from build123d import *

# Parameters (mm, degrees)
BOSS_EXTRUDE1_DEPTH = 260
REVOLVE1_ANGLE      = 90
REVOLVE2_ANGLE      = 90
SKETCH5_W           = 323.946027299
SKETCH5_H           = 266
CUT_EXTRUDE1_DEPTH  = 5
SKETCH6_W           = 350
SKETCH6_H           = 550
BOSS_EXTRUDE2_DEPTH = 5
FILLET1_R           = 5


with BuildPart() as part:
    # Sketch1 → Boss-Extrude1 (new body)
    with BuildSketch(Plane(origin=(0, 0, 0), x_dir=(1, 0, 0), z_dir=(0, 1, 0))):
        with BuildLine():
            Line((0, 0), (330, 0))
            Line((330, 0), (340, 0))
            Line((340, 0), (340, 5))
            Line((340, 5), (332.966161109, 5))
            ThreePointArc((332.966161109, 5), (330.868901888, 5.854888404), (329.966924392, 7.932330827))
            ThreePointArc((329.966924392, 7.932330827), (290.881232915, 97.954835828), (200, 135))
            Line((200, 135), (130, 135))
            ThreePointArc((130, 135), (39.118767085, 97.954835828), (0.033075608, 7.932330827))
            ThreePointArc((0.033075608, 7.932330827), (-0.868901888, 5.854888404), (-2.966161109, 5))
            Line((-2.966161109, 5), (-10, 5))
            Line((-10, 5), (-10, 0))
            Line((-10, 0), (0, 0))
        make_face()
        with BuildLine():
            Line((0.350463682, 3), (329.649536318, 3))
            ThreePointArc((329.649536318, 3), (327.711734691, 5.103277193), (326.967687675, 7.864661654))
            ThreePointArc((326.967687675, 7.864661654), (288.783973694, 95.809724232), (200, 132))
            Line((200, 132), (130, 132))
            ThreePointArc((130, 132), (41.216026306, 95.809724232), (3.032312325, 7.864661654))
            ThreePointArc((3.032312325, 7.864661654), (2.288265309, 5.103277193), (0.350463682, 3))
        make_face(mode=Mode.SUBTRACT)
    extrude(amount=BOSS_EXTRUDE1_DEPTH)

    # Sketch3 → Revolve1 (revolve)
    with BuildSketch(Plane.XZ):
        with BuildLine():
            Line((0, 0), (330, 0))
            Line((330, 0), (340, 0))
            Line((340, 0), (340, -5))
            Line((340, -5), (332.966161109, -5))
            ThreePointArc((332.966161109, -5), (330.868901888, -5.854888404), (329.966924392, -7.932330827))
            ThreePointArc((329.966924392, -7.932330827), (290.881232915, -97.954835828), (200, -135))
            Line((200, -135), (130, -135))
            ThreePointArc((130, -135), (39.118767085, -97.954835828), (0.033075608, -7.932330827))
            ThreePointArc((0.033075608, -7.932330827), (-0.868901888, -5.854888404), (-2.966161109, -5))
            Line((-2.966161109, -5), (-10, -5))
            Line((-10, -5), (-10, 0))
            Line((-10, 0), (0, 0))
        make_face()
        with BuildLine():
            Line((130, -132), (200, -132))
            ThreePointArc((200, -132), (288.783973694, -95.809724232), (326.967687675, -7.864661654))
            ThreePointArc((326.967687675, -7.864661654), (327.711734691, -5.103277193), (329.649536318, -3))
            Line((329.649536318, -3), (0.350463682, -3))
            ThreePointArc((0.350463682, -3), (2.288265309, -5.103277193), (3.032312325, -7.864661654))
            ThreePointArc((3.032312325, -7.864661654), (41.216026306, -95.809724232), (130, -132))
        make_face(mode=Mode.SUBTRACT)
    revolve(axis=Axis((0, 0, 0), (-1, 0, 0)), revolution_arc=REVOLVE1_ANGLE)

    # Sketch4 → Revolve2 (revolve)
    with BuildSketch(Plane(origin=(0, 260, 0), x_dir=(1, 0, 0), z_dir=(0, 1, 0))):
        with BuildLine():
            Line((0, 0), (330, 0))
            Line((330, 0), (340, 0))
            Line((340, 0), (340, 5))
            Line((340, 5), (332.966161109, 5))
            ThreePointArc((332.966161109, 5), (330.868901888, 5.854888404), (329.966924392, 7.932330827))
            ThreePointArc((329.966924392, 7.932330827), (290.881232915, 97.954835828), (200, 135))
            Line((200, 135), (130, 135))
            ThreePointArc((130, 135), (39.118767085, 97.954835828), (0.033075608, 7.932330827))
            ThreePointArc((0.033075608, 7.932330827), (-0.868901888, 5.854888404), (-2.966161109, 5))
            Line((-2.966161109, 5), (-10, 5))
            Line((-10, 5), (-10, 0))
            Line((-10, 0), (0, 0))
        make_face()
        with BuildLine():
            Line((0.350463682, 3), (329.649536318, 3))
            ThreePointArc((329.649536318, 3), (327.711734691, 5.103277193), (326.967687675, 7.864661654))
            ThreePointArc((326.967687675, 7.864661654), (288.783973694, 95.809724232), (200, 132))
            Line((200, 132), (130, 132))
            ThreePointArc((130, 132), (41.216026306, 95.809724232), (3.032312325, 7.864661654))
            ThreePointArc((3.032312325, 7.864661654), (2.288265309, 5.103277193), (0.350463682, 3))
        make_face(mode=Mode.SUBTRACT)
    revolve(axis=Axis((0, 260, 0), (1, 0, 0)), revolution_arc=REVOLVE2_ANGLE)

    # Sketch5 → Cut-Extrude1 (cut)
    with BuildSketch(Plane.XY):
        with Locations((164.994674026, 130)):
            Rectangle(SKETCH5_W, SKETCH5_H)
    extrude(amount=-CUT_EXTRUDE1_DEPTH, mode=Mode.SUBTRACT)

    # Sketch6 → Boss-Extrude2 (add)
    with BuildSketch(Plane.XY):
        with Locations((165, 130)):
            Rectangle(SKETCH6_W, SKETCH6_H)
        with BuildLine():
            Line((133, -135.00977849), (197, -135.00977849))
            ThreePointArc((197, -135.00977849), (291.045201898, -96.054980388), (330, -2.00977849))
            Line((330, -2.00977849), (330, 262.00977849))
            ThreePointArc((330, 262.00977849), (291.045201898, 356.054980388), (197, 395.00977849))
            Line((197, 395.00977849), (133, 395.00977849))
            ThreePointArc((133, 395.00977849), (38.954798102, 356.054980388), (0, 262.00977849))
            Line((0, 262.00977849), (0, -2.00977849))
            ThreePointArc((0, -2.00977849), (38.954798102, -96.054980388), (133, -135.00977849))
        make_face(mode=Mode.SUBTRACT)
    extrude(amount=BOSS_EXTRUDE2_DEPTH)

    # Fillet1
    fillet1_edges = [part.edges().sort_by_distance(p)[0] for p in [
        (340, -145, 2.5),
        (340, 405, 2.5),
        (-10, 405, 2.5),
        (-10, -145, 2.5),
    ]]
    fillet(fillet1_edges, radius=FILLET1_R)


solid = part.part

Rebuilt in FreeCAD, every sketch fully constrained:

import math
import FreeCAD as App
import Part
import Sketcher

V = App.Vector
Q = App.Units.Quantity


def edges_at(feature, points):
    """Names of the edges that pass closest to the given points."""
    edges = feature.Shape.Edges
    near = lambda p: min(range(len(edges)), key=lambda i: edges[i].distToShape(Part.Vertex(*p))[0])
    return sorted({f"Edge{near(p) + 1}" for p in points})

doc = App.newDocument("Part")
body = doc.addObject("PartDesign::Body", "Body")

# Sketch on XZ plane
sketch1 = doc.addObject("Sketcher::SketchObject", "Sketch")
body.addObject(sketch1)
sketch1.AttachmentSupport = (doc.XZ_Plane, [""])
sketch1.MapMode = "FlatFace"
sketch1.addGeometry([
    Part.LineSegment(V(340, 0, 0), V(340, -5, 0)),  # 0
    Part.LineSegment(V(340, -5, 0), V(333, -5, 0)),  # 1
    Part.ArcOfCircle(Part.Circle(V(333, -8, 0), V(0, 0, 1), 3), math.radians(90), math.radians(179)),  # 2
    Part.ArcOfCircle(Part.Circle(V(200, -5, 0), V(0, 0, 1), 130), math.radians(-90), math.radians(-1)),  # 3
    Part.LineSegment(V(200, -135, 0), V(130, -135, 0)),  # 4
    Part.ArcOfCircle(Part.Circle(V(130, -5, 0), V(0, 0, 1), 130), math.radians(-179), math.radians(-90)),  # 5
    Part.ArcOfCircle(Part.Circle(V(-3, -8, 0), V(0, 0, 1), 3), math.radians(1), math.radians(90)),  # 6
    Part.LineSegment(V(-3, -5, 0), V(-10, -5, 0)),  # 7
    Part.LineSegment(V(-10, -5, 0), V(-10, 0, 0)),  # 8
    Part.LineSegment(V(-10, 0, 0), V(340, 0, 0)),  # 9
    Part.LineSegment(V(329.6, -3, 0), V(0.4, -3, 0)),  # 10
    Part.ArcOfCircle(Part.Circle(V(-3, -8, 0), V(0, 0, 1), 6), math.radians(1), math.radians(56)),  # 11
    Part.ArcOfCircle(Part.Circle(V(130, -5, 0), V(0, 0, 1), 127), math.radians(-179), math.radians(-90)),  # 12
    Part.LineSegment(V(130, -132, 0), V(200, -132, 0)),  # 13
    Part.ArcOfCircle(Part.Circle(V(200, -5, 0), V(0, 0, 1), 127), math.radians(-90), math.radians(-1)),  # 14
    Part.ArcOfCircle(Part.Circle(V(333, -8, 0), V(0, 0, 1), 6), math.radians(124), math.radians(179)),  # 15
], False)
sketch1.addConstraint([
    Sketcher.Constraint("Coincident", 0, 2, 1, 1),
    Sketcher.Constraint("Tangent", 1, 2, 2, 1),
    Sketcher.Constraint("Tangent", 2, 2, 3, 2),
    Sketcher.Constraint("Tangent", 3, 1, 4, 1),
    Sketcher.Constraint("Tangent", 4, 2, 5, 2),
    Sketcher.Constraint("Tangent", 5, 1, 6, 1),
    Sketcher.Constraint("Tangent", 6, 2, 7, 1),
    Sketcher.Constraint("Coincident", 7, 2, 8, 1),
    Sketcher.Constraint("Coincident", 8, 2, 9, 1),
    Sketcher.Constraint("Coincident", 9, 2, 0, 1),
    Sketcher.Constraint("Coincident", 10, 2, 11, 2),
    Sketcher.Constraint("Tangent", 11, 1, 12, 1),
    Sketcher.Constraint("Tangent", 12, 2, 13, 1),
    Sketcher.Constraint("Tangent", 13, 2, 14, 1),
    Sketcher.Constraint("Tangent", 14, 2, 15, 2),
    Sketcher.Constraint("Coincident", 15, 1, 10, 1),
    Sketcher.Constraint("Vertical", 0),
    Sketcher.Constraint("Horizontal", 1),
    Sketcher.Constraint("Horizontal", 4),
    Sketcher.Constraint("Horizontal", 7),
    Sketcher.Constraint("Vertical", 8),
    Sketcher.Constraint("Horizontal", 9),
    Sketcher.Constraint("Horizontal", 10),
    Sketcher.Constraint("Horizontal", 13),
    Sketcher.Constraint("Coincident", 11, 3, 6, 3),
    Sketcher.Constraint("Coincident", 12, 3, 5, 3),
    Sketcher.Constraint("Coincident", 14, 3, 3, 3),
    Sketcher.Constraint("Coincident", 15, 3, 2, 3),
    Sketcher.Constraint("Equal", 3, 5),
    Sketcher.Constraint("Equal", 2, 6),
    Sketcher.Constraint("PointOnObject", 8, 2, -1),
    Sketcher.Constraint("Horizontal", 2, 3, 6, 3),
    Sketcher.Constraint("Horizontal", 14, 3, 0, 2),
    Sketcher.Constraint("Equal", 1, 7),
    Sketcher.Constraint("Radius", 2, Q("3 mm")),
    Sketcher.Constraint("Radius", 3, Q("130 mm")),
    Sketcher.Constraint("Radius", 11, Q("6 mm")),
    Sketcher.Constraint("DistanceX", 4, 2, 4, 1, Q("70 mm")),
    Sketcher.Constraint("DistanceX", 9, 1, 9, 2, Q("350 mm")),
    Sketcher.Constraint("DistanceY", 0, 2, 0, 1, Q("5 mm")),
    Sketcher.Constraint("DistanceX", -1, 1, 3, 3, Q("200 mm")),
    Sketcher.Constraint("DistanceY", 10, 2, -1, 1, Q("3 mm")),
])
pad1 = doc.addObject("PartDesign::Pad", "Pad")
body.addObject(pad1)
pad1.Profile = sketch1
pad1.Length = 260
pad1.Reversed = True

# Sketch on XZ plane
sketch2 = doc.addObject("Sketcher::SketchObject", "Sketch001")
body.addObject(sketch2)
sketch2.AttachmentSupport = (doc.XZ_Plane, [""])
sketch2.MapMode = "FlatFace"
sketch2.addGeometry([
    Part.LineSegment(V(340, -5, 0), V(340, 0, 0)),  # 0
    Part.LineSegment(V(340, 0, 0), V(-10, 0, 0)),  # 1
    Part.LineSegment(V(-10, 0, 0), V(-10, -5, 0)),  # 2
    Part.LineSegment(V(-10, -5, 0), V(-3, -5, 0)),  # 3
    Part.ArcOfCircle(Part.Circle(V(-3, -8, 0), V(0, 0, 1), 3), math.radians(1), math.radians(90)),  # 4
    Part.ArcOfCircle(Part.Circle(V(130, -5, 0), V(0, 0, 1), 130), math.radians(-179), math.radians(-90)),  # 5
    Part.LineSegment(V(130, -135, 0), V(200, -135, 0)),  # 6
    Part.ArcOfCircle(Part.Circle(V(200, -5, 0), V(0, 0, 1), 130), math.radians(-90), math.radians(-1)),  # 7
    Part.ArcOfCircle(Part.Circle(V(333, -8, 0), V(0, 0, 1), 3), math.radians(90), math.radians(179)),  # 8
    Part.LineSegment(V(333, -5, 0), V(340, -5, 0)),  # 9
    Part.ArcOfCircle(Part.Circle(V(130, -5, 0), V(0, 0, 1), 127), math.radians(-179), math.radians(-90)),  # 10
    Part.ArcOfCircle(Part.Circle(V(-3, -8, 0), V(0, 0, 1), 6), math.radians(1), math.radians(56)),  # 11
    Part.LineSegment(V(0.4, -3, 0), V(329.6, -3, 0)),  # 12
    Part.ArcOfCircle(Part.Circle(V(333, -8, 0), V(0, 0, 1), 6), math.radians(124), math.radians(179)),  # 13
    Part.ArcOfCircle(Part.Circle(V(200, -5, 0), V(0, 0, 1), 127), math.radians(-90), math.radians(-1)),  # 14
    Part.LineSegment(V(200, -132, 0), V(130, -132, 0)),  # 15
], False)
sketch2.addConstraint([
    Sketcher.Constraint("Coincident", 0, 2, 1, 1),
    Sketcher.Constraint("Coincident", 1, 2, 2, 1),
    Sketcher.Constraint("Coincident", 2, 2, 3, 1),
    Sketcher.Constraint("Tangent", 3, 2, 4, 2),
    Sketcher.Constraint("Tangent", 4, 1, 5, 1),
    Sketcher.Constraint("Tangent", 5, 2, 6, 1),
    Sketcher.Constraint("Tangent", 6, 2, 7, 1),
    Sketcher.Constraint("Tangent", 7, 2, 8, 2),
    Sketcher.Constraint("Tangent", 8, 1, 9, 1),
    Sketcher.Constraint("Coincident", 9, 2, 0, 1),
    Sketcher.Constraint("Tangent", 10, 1, 11, 1),
    Sketcher.Constraint("Coincident", 11, 2, 12, 1),
    Sketcher.Constraint("Coincident", 12, 2, 13, 1),
    Sketcher.Constraint("Tangent", 13, 2, 14, 2),
    Sketcher.Constraint("Tangent", 14, 1, 15, 1),
    Sketcher.Constraint("Tangent", 15, 2, 10, 2),
    Sketcher.Constraint("Vertical", 0),
    Sketcher.Constraint("Horizontal", 1),
    Sketcher.Constraint("Vertical", 2),
    Sketcher.Constraint("Horizontal", 3),
    Sketcher.Constraint("Horizontal", 6),
    Sketcher.Constraint("Horizontal", 9),
    Sketcher.Constraint("Horizontal", 12),
    Sketcher.Constraint("Horizontal", 15),
    Sketcher.Constraint("Coincident", 10, 3, 5, 3),
    Sketcher.Constraint("Coincident", 11, 3, 4, 3),
    Sketcher.Constraint("Coincident", 13, 3, 8, 3),
    Sketcher.Constraint("Coincident", 14, 3, 7, 3),
    Sketcher.Constraint("Equal", 5, 7),
    Sketcher.Constraint("Equal", 4, 8),
    Sketcher.Constraint("PointOnObject", 0, 2, -1),
    Sketcher.Constraint("Horizontal", 4, 3, 8, 3),
    Sketcher.Constraint("Horizontal", 14, 3, 2, 2),
    Sketcher.Constraint("Equal", 3, 9),
    Sketcher.Constraint("Radius", 4, Q("3 mm")),
    Sketcher.Constraint("Radius", 5, Q("130 mm")),
    Sketcher.Constraint("Radius", 10, Q("127 mm")),
    Sketcher.Constraint("DistanceX", 1, 2, 1, 1, Q("350 mm")),
    Sketcher.Constraint("DistanceX", 6, 1, 6, 2, Q("70 mm")),
    Sketcher.Constraint("DistanceY", 0, 1, 0, 2, Q("5 mm")),
    Sketcher.Constraint("DistanceX", -1, 1, 5, 3, Q("130 mm")),
    Sketcher.Constraint("DistanceY", 11, 2, -1, 1, Q("3 mm")),
])
revolution = doc.addObject("PartDesign::Revolution", "Revolution")
body.addObject(revolution)
revolution.Profile = sketch2
revolution.ReferenceAxis = (sketch2, ["H_Axis"])
revolution.Angle = 90
revolution.Reversed = True

# Sketch on XZ plane
sketch3 = doc.addObject("Sketcher::SketchObject", "Sketch002")
body.addObject(sketch3)
sketch3.AttachmentSupport = (doc.XZ_Plane, [""])
sketch3.MapMode = "FlatFace"
sketch3.AttachmentOffset = App.Placement(V(0, 0, -260), App.Rotation())
sketch3.addGeometry([
    Part.LineSegment(V(340, 0, 0), V(340, -5, 0)),  # 0
    Part.LineSegment(V(340, -5, 0), V(333, -5, 0)),  # 1
    Part.ArcOfCircle(Part.Circle(V(333, -8, 0), V(0, 0, 1), 3), math.radians(90), math.radians(179)),  # 2
    Part.ArcOfCircle(Part.Circle(V(200, -5, 0), V(0, 0, 1), 130), math.radians(-90), math.radians(-1)),  # 3
    Part.LineSegment(V(200, -135, 0), V(130, -135, 0)),  # 4
    Part.ArcOfCircle(Part.Circle(V(130, -5, 0), V(0, 0, 1), 130), math.radians(-179), math.radians(-90)),  # 5
    Part.ArcOfCircle(Part.Circle(V(-3, -8, 0), V(0, 0, 1), 3), math.radians(1), math.radians(90)),  # 6
    Part.LineSegment(V(-3, -5, 0), V(-10, -5, 0)),  # 7
    Part.LineSegment(V(-10, -5, 0), V(-10, 0, 0)),  # 8
    Part.LineSegment(V(-10, 0, 0), V(340, 0, 0)),  # 9
    Part.LineSegment(V(329.6, -3, 0), V(0.4, -3, 0)),  # 10
    Part.ArcOfCircle(Part.Circle(V(-3, -8, 0), V(0, 0, 1), 6), math.radians(1), math.radians(56)),  # 11
    Part.ArcOfCircle(Part.Circle(V(130, -5, 0), V(0, 0, 1), 127), math.radians(-179), math.radians(-90)),  # 12
    Part.LineSegment(V(130, -132, 0), V(200, -132, 0)),  # 13
    Part.ArcOfCircle(Part.Circle(V(200, -5, 0), V(0, 0, 1), 127), math.radians(-90), math.radians(-1)),  # 14
    Part.ArcOfCircle(Part.Circle(V(333, -8, 0), V(0, 0, 1), 6), math.radians(124), math.radians(179)),  # 15
], False)
sketch3.addConstraint([
    Sketcher.Constraint("Coincident", 0, 2, 1, 1),
    Sketcher.Constraint("Tangent", 1, 2, 2, 1),
    Sketcher.Constraint("Tangent", 2, 2, 3, 2),
    Sketcher.Constraint("Tangent", 3, 1, 4, 1),
    Sketcher.Constraint("Tangent", 4, 2, 5, 2),
    Sketcher.Constraint("Tangent", 5, 1, 6, 1),
    Sketcher.Constraint("Tangent", 6, 2, 7, 1),
    Sketcher.Constraint("Coincident", 7, 2, 8, 1),
    Sketcher.Constraint("Coincident", 8, 2, 9, 1),
    Sketcher.Constraint("Coincident", 9, 2, 0, 1),
    Sketcher.Constraint("Coincident", 10, 2, 11, 2),
    Sketcher.Constraint("Tangent", 11, 1, 12, 1),
    Sketcher.Constraint("Tangent", 12, 2, 13, 1),
    Sketcher.Constraint("Tangent", 13, 2, 14, 1),
    Sketcher.Constraint("Tangent", 14, 2, 15, 2),
    Sketcher.Constraint("Coincident", 15, 1, 10, 1),
    Sketcher.Constraint("Vertical", 0),
    Sketcher.Constraint("Horizontal", 1),
    Sketcher.Constraint("Horizontal", 4),
    Sketcher.Constraint("Horizontal", 7),
    Sketcher.Constraint("Vertical", 8),
    Sketcher.Constraint("Horizontal", 9),
    Sketcher.Constraint("Horizontal", 10),
    Sketcher.Constraint("Horizontal", 13),
    Sketcher.Constraint("Coincident", 11, 3, 6, 3),
    Sketcher.Constraint("Coincident", 12, 3, 5, 3),
    Sketcher.Constraint("Coincident", 14, 3, 3, 3),
    Sketcher.Constraint("Coincident", 15, 3, 2, 3),
    Sketcher.Constraint("Equal", 3, 5),
    Sketcher.Constraint("Equal", 2, 6),
    Sketcher.Constraint("PointOnObject", 8, 2, -1),
    Sketcher.Constraint("Horizontal", 2, 3, 6, 3),
    Sketcher.Constraint("Horizontal", 14, 3, 0, 2),
    Sketcher.Constraint("Equal", 1, 7),
    Sketcher.Constraint("Radius", 2, Q("3 mm")),
    Sketcher.Constraint("Radius", 3, Q("130 mm")),
    Sketcher.Constraint("Radius", 11, Q("6 mm")),
    Sketcher.Constraint("DistanceX", 4, 2, 4, 1, Q("70 mm")),
    Sketcher.Constraint("DistanceX", 9, 1, 9, 2, Q("350 mm")),
    Sketcher.Constraint("DistanceY", 0, 2, 0, 1, Q("5 mm")),
    Sketcher.Constraint("DistanceX", -1, 1, 3, 3, Q("200 mm")),
    Sketcher.Constraint("DistanceY", 10, 2, -1, 1, Q("3 mm")),
])
revolution2 = doc.addObject("PartDesign::Revolution", "Revolution001")
body.addObject(revolution2)
revolution2.Profile = sketch3
revolution2.ReferenceAxis = (sketch3, ["H_Axis"])
revolution2.Angle = 90

# Sketch on XY plane
sketch4 = doc.addObject("Sketcher::SketchObject", "Sketch003")
body.addObject(sketch4)
sketch4.AttachmentSupport = (doc.XY_Plane, [""])
sketch4.MapMode = "FlatFace"
sketch4.addGeometry([
    Part.LineSegment(V(3, 263, 0), V(3, -3, 0)),
    Part.LineSegment(V(3, -3, 0), V(327, -3, 0)),
    Part.LineSegment(V(327, -3, 0), V(327, 263, 0)),
    Part.LineSegment(V(327, 263, 0), V(3, 263, 0)),
], False)
sketch4.addConstraint([
    Sketcher.Constraint("Coincident", 0, 2, 1, 1),
    Sketcher.Constraint("Coincident", 1, 2, 2, 1),
    Sketcher.Constraint("Coincident", 2, 2, 3, 1),
    Sketcher.Constraint("Coincident", 3, 2, 0, 1),
    Sketcher.Constraint("Vertical", 0),
    Sketcher.Constraint("Horizontal", 1),
    Sketcher.Constraint("Vertical", 2),
    Sketcher.Constraint("Horizontal", 3),
    Sketcher.Constraint("DistanceY", 0, 2, 0, 1, Q("266 mm")),
    Sketcher.Constraint("DistanceY", 0, 2, -1, 1, Q("3 mm")),
    Sketcher.Constraint("DistanceX", 1, 1, 1, 2, Q("323.946027 mm")),
    Sketcher.Constraint("DistanceX", -1, 1, 0, 2, Q("3.02166 mm")),
])
pocket1 = doc.addObject("PartDesign::Pocket", "Pocket")
body.addObject(pocket1)
pocket1.Profile = sketch4
pocket1.Length = 5

# Sketch on XY plane
sketch5 = doc.addObject("Sketcher::SketchObject", "Sketch004")
body.addObject(sketch5)
sketch5.AttachmentSupport = (doc.XY_Plane, [""])
sketch5.MapMode = "FlatFace"
sketch5.addGeometry([
    Part.LineSegment(V(-10, 405, 0), V(-10, -145, 0)),  # 0
    Part.LineSegment(V(-10, -145, 0), V(340, -145, 0)),  # 1
    Part.LineSegment(V(340, -145, 0), V(340, 405, 0)),  # 2
    Part.LineSegment(V(340, 405, 0), V(-10, 405, 0)),  # 3
    Part.LineSegment(V(197, -135, 0), V(133, -135, 0)),  # 4
    Part.ArcOfCircle(Part.Circle(V(133, -2, 0), V(0, 0, 1), 133), math.radians(180), math.radians(270)),  # 5
    Part.LineSegment(V(0, -2, 0), V(0, 262, 0)),  # 6
    Part.ArcOfCircle(Part.Circle(V(133, 262, 0), V(0, 0, 1), 133), math.radians(90), math.radians(180)),  # 7
    Part.LineSegment(V(133, 395, 0), V(197, 395, 0)),  # 8
    Part.ArcOfCircle(Part.Circle(V(197, 262, 0), V(0, 0, 1), 133), math.radians(0), math.radians(90)),  # 9
    Part.LineSegment(V(330, 262, 0), V(330, -2, 0)),  # 10
    Part.ArcOfCircle(Part.Circle(V(197, -2, 0), V(0, 0, 1), 133), math.radians(-90), math.radians(0)),  # 11
], False)
sketch5.addConstraint([
    Sketcher.Constraint("Coincident", 0, 2, 1, 1),
    Sketcher.Constraint("Coincident", 1, 2, 2, 1),
    Sketcher.Constraint("Coincident", 2, 2, 3, 1),
    Sketcher.Constraint("Coincident", 3, 2, 0, 1),
    Sketcher.Constraint("Tangent", 4, 2, 5, 2),
    Sketcher.Constraint("Tangent", 5, 1, 6, 1),
    Sketcher.Constraint("Tangent", 6, 2, 7, 2),
    Sketcher.Constraint("Tangent", 7, 1, 8, 1),
    Sketcher.Constraint("Tangent", 8, 2, 9, 2),
    Sketcher.Constraint("Tangent", 9, 1, 10, 1),
    Sketcher.Constraint("Tangent", 10, 2, 11, 2),
    Sketcher.Constraint("Tangent", 11, 1, 4, 1),
    Sketcher.Constraint("Vertical", 0),
    Sketcher.Constraint("Horizontal", 1),
    Sketcher.Constraint("Vertical", 2),
    Sketcher.Constraint("Horizontal", 3),
    Sketcher.Constraint("Horizontal", 4),
    Sketcher.Constraint("Vertical", 6),
    Sketcher.Constraint("Horizontal", 8),
    Sketcher.Constraint("Vertical", 10),
    Sketcher.Constraint("Equal", 5, 7),
    Sketcher.Constraint("Equal", 7, 9),
    Sketcher.Constraint("Equal", 9, 11),
    Sketcher.Constraint("PointOnObject", 5, 1, -2),
    Sketcher.Constraint("Radius", 5, Q("133 mm")),
    Sketcher.Constraint("DistanceX", 1, 1, 1, 2, Q("350 mm")),
    Sketcher.Constraint("DistanceX", 4, 2, 4, 1, Q("64 mm")),
    Sketcher.Constraint("DistanceY", 0, 2, 0, 1, Q("550 mm")),
    Sketcher.Constraint("DistanceX", 0, 2, -1, 1, Q("10 mm")),
    Sketcher.Constraint("DistanceY", 0, 2, -1, 1, Q("145 mm")),
    Sketcher.Constraint("DistanceY", 6, 1, 6, 2, Q("264.019557 mm")),
    Sketcher.Constraint("DistanceY", 5, 3, -1, 1, Q("2.009778 mm")),
])
pad2 = doc.addObject("PartDesign::Pad", "Pad001")
body.addObject(pad2)
pad2.Profile = sketch5
pad2.Length = 5
doc.recompute()

fillet = doc.addObject("PartDesign::Fillet", "Fillet")
body.addObject(fillet)
fillet.Base = (pad2, edges_at(pad2, [
    (340, -145, 2.5),
    (340, 405, 2.5),
    (-10, 405, 2.5),
    (-10, -145, 2.5),
]))
fillet.Radius = 5

doc.recompute()
